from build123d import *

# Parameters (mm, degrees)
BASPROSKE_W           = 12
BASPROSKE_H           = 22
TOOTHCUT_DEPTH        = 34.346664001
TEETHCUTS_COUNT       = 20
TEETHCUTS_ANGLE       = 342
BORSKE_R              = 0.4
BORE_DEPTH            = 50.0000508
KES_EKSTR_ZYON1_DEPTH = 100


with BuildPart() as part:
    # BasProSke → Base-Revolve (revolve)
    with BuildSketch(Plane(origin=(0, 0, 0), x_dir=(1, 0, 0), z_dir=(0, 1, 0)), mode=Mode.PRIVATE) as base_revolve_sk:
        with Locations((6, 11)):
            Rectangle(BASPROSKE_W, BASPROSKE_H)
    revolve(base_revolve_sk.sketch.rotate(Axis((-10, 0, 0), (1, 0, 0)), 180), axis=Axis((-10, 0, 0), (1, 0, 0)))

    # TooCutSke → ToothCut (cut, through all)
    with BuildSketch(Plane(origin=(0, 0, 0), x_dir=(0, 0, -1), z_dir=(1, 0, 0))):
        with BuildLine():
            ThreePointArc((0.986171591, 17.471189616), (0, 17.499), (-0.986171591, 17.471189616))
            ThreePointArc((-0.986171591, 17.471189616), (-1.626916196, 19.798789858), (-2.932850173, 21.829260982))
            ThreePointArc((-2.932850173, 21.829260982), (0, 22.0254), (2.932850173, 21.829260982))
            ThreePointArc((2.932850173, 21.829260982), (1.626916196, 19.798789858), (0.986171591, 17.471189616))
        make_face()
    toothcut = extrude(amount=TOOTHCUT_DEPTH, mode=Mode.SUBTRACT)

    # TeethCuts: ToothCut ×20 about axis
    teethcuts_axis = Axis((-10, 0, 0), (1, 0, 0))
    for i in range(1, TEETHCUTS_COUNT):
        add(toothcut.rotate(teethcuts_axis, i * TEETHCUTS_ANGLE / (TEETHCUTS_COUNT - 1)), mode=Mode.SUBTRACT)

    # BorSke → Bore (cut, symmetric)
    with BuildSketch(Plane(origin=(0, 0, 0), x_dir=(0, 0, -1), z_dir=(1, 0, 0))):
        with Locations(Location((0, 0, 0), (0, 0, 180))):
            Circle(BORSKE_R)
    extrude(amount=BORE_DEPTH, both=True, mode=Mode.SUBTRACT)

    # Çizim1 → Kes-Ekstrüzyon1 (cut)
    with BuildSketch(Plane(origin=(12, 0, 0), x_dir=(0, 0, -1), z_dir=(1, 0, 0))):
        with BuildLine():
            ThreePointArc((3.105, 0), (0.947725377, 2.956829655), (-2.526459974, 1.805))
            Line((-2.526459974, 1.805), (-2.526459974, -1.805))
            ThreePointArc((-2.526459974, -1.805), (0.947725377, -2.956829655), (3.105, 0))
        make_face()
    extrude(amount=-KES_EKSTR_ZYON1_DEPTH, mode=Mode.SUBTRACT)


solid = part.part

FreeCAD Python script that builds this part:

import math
import FreeCAD as App
import Part
import Sketcher
Q = App.Units.Quantity


def add_polygon(sketch, points):
    """Adds a closed chain of lines whose ends are joined by coincident constraints."""
    first, n = sketch.GeometryCount, len(points)
    for a, b in zip(points, points[1:] + points[:1]):
        sketch.addGeometry(Part.LineSegment(App.Vector(*a, 0), App.Vector(*b, 0)), False)
    for i in range(n):
        sketch.addConstraint(Sketcher.Constraint("Coincident", first + i, 2, first + (i + 1) % n, 1))

doc = App.newDocument("Part")
body = doc.addObject("PartDesign::Body", "Body")

sketch1 = body.newObject("Sketcher::SketchObject", "Sketch")
sketch1.AttachmentSupport = (doc.getObject("XZ_Plane"), [""])
sketch1.MapMode = "FlatFace"
add_polygon(sketch1, [(0, -22), (0, 0), (12, 0), (12, -22)])
sketch1.addConstraint([
    Sketcher.Constraint("Vertical", 0),
    Sketcher.Constraint("Horizontal", 1),
    Sketcher.Constraint("Vertical", 2),
    Sketcher.Constraint("Horizontal", 3),
    Sketcher.Constraint("Coincident", 0, 2, -1, 1),
    Sketcher.Constraint("DistanceX", 1, 1, 1, 2, Q("12 mm")),
    Sketcher.Constraint("DistanceY", 0, 1, 0, 2, Q("22 mm")),
])
revolution = body.newObject("PartDesign::Revolution", "Revolution")
revolution.Profile = sketch1
revolution.ReferenceAxis = (sketch1, ["H_Axis"])
revolution.Angle = 360

sketch2 = body.newObject("Sketcher::SketchObject", "Sketch001")
sketch2.AttachmentSupport = (doc.getObject("YZ_Plane"), [""])
sketch2.MapMode = "FlatFace"
sketch2.addGeometry([
    Part.ArcOfCircle(Part.Circle(App.Vector(0, 0, 0), App.Vector(0, 0, 1), 17.5), math.radians(-3.23), math.radians(3.23)),
    Part.ArcOfCircle(Part.Circle(App.Vector(16.5, -8.9, 0), App.Vector(0, 0, 1), 8), math.radians(49), math.radians(83)),
    Part.ArcOfCircle(Part.Circle(App.Vector(0, 0, 0), App.Vector(0, 0, 1), 22), math.radians(-7.65), math.radians(7.65)),
    Part.ArcOfCircle(Part.Circle(App.Vector(16.5, 8.9, 0), App.Vector(0, 0, 1), 8), math.radians(-83), math.radians(-49)),
], False)
sketch2.addConstraint([
    Sketcher.Constraint("Coincident", 0, 1, 1, 2),
    Sketcher.Constraint("Coincident", 1, 1, 2, 1),
    Sketcher.Constraint("Coincident", 2, 2, 3, 2),
    Sketcher.Constraint("Coincident", 3, 1, 0, 2),
    Sketcher.Constraint("Coincident", 0, 3, -1, 1),
    Sketcher.Constraint("Coincident", 2, 3, -1, 1),
    Sketcher.Constraint("Equal", 1, 3),
    Sketcher.Constraint("Symmetric", 1, 3, 3, 3, -1),
    Sketcher.Constraint("Radius", 1, Q("8 mm")),
    Sketcher.Constraint("Radius", 0, Q("17.499 mm")),
    Sketcher.Constraint("Radius", 2, Q("22.0254 mm")),
    Sketcher.Constraint("DistanceY", 1, 1, 2, 2, Q("5.8657 mm")),
    Sketcher.Constraint("DistanceX", -1, 1, 1, 3, Q("16.536031 mm")),
])
pocket1 = body.newObject("PartDesign::Pocket", "Pocket")
pocket1.Profile = sketch2
pocket1.Type = "ThroughAll"
pocket1.Reversed = True
doc.recompute()

polarpattern = body.newObject("PartDesign::PolarPattern", "PolarPattern")
polarpattern.Originals = [pocket1]
polarpattern.Axis = (doc.getObject("X_Axis"), [""])
polarpattern.Angle = 360
polarpattern.Occurrences = 20
body.Tip = polarpattern

sketch3 = body.newObject("Sketcher::SketchObject", "Sketch002")
sketch3.AttachmentSupport = (doc.getObject("YZ_Plane"), [""])
sketch3.MapMode = "FlatFace"
sketch3.addGeometry(Part.Circle(App.Vector(0, 0, 0), App.Vector(0, 0, 1), 0.4), False)
sketch3.addConstraint([
    Sketcher.Constraint("Coincident", 0, 3, -1, 1),
    Sketcher.Constraint("Diameter", 0, Q("0.8 mm")),
])
pocket2 = body.newObject("PartDesign::Pocket", "Pocket001")
pocket2.Profile = sketch3
pocket2.Length = 100.000102
pocket2.Midplane = True

sketch4 = body.newObject("Sketcher::SketchObject", "Sketch003")
sketch4.AttachmentSupport = (doc.getObject("YZ_Plane"), [""])
sketch4.MapMode = "FlatFace"
sketch4.AttachmentOffset = App.Placement(App.Vector(0, 0, 12), App.Rotation())
sketch4.addGeometry([
    Part.ArcOfCircle(Part.Circle(App.Vector(0, 0, 0), App.Vector(0, 0, 1), 3.1), math.radians(-90), math.radians(54)),
    Part.LineSegment(App.Vector(1.8, 2.5, 0), App.Vector(-1.8, 2.5, 0)),
    Part.ArcOfCircle(Part.Circle(App.Vector(0, 0, 0), App.Vector(0, 0, 1), 3.1), math.radians(126), math.radians(270)),
], False)
sketch4.addConstraint([
    Sketcher.Constraint("Coincident", 0, 2, 1, 1),
    Sketcher.Constraint("Coincident", 1, 2, 2, 1),
    Sketcher.Constraint("Tangent", 2, 2, 0, 1),
    Sketcher.Constraint("Horizontal", 1),
    Sketcher.Constraint("Coincident", 0, 3, -1, 1),
    Sketcher.Constraint("Equal", 0, 2),
    Sketcher.Constraint("PointOnObject", 2, 2, -2),
    Sketcher.Constraint("Radius", 0, Q("3.105 mm")),
    Sketcher.Constraint("DistanceX", 1, 2, 1, 1, Q("3.61 mm")),
])
pocket3 = body.newObject("PartDesign::Pocket", "Pocket002")
pocket3.Profile = sketch4
pocket3.Length = 100

doc.recompute()
